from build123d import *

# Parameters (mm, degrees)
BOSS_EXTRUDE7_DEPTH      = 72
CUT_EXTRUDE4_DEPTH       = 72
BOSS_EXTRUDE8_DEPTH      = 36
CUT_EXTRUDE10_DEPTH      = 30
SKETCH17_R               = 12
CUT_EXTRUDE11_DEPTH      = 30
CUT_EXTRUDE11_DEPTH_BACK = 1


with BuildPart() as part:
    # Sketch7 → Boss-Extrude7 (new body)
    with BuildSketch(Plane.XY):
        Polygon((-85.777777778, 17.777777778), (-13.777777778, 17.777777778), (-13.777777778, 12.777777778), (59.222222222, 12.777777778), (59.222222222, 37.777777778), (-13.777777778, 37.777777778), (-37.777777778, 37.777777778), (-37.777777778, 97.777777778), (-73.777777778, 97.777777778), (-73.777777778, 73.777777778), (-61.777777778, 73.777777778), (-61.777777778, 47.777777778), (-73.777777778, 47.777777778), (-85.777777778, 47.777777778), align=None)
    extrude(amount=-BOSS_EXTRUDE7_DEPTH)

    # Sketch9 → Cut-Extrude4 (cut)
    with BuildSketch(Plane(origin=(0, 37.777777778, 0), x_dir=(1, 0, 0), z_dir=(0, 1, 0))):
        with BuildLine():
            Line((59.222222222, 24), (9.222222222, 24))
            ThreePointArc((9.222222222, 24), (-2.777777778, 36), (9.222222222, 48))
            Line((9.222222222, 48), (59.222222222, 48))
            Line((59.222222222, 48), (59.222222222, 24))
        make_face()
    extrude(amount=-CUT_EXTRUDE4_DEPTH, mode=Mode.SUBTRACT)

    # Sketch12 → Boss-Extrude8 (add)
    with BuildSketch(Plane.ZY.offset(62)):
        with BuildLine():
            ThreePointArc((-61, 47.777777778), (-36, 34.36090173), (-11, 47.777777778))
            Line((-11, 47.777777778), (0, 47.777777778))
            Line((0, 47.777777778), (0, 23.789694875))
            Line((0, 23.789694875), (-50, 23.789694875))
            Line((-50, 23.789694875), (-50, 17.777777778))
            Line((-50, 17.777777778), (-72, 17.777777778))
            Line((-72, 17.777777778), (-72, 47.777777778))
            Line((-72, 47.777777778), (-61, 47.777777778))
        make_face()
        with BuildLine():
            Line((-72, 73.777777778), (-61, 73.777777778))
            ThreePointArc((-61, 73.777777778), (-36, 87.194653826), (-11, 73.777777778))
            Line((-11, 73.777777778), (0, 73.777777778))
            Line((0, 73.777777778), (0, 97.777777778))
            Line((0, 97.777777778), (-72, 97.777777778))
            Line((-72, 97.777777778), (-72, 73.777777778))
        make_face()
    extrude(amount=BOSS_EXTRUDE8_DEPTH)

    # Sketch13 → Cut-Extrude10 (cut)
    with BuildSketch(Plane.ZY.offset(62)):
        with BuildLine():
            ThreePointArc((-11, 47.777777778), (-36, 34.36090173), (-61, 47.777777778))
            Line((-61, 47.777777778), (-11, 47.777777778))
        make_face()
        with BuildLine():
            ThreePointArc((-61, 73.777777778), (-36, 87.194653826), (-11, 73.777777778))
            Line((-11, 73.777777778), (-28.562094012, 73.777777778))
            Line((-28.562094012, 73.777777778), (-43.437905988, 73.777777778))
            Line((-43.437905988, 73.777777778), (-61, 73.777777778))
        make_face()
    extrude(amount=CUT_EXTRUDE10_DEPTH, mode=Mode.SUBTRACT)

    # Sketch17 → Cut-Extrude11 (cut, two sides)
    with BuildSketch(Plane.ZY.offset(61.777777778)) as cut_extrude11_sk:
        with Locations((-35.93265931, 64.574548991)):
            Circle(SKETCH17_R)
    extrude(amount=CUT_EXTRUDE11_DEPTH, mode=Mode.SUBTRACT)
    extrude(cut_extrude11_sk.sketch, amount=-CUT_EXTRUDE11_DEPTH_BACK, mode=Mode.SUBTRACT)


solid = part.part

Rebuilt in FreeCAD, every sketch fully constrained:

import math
import FreeCAD as App
import Part
import Sketcher
from FreeCAD import Vector


def add_polygon(sketch, points):
    """Adds a closed chain of lines whose ends are joined by coincident constraints."""
    first, n = sketch.GeometryCount, len(points)
    for a, b in zip(points, points[1:] + points[:1]):
        sketch.addGeometry(Part.LineSegment(App.Vector(*a, 0), App.Vector(*b, 0)), False)
    for i in range(n):
        sketch.addConstraint(Sketcher.Constraint("Coincident", first + i, 2, first + (i + 1) % n, 1))

doc = App.newDocument("Part")
params = doc.addObject("Spreadsheet::Sheet", "Params")
for row, (alias, value) in enumerate([
    ("sketch1_width", "72 mm"),
    ("sketch1_width2", "73 mm"),
    ("sketch1_width3", "97 mm"),
    ("sketch1_width4", "36 mm"),
    ("sketch1_width5", "12 mm"),
    ("pad1_length", "72 mm"),
    ("sketch2_radius", "12 mm"),
    ("sketch2_width", "50 mm"),
    ("pocket1_length", "72 mm"),
    ("sketch3_radius", "30 mm"),
    ("sketch3_width", "30 mm"),
    ("sketch3_width2", "24 mm"),
    ("sketch3_height", "11 mm"),
    ("sketch3_height2", "22 mm"),
    ("pad2_length", "36 mm"),
    ("sketch4_radius", "30 mm"),
    ("sketch4_height", "50 mm"),
    ("pocket2_length", "30 mm"),
    ("sketch5_diameter", "24 mm"),
    ("pocket3_length", "30 mm"),
    ("pocket3_length2", "1 mm"),
], start=1):
    params.set(f"A{row}", alias)
    params.set(f"B{row}", "=" + value)
    params.setAlias(f"B{row}", alias)

body = doc.addObject("PartDesign::Body", "Body")

# Sketch on XY plane
sketch1 = doc.addObject("Sketcher::SketchObject", "Sketch")
body.addObject(sketch1)
sketch1.AttachmentSupport = (doc.XY_Plane, [""])
sketch1.MapMode = "FlatFace"
add_polygon(sketch1, [(-85.777778, 17.777778), (-13.777778, 17.777778), (-13.777778, 12.777778), (59.222222, 12.777778), (59.222222, 37.777778), (-37.777778, 37.777778), (-37.777778, 97.777778), (-73.777778, 97.777778), (-73.777778, 73.777778), (-61.777778, 73.777778), (-61.777778, 47.777778), (-85.777778, 47.777778)])  # lines 0-11
sketch1.addConstraint([
    Sketcher.Constraint("Horizontal", 0),
    Sketcher.Constraint("Vertical", 1),
    Sketcher.Constraint("Horizontal", 2),
    Sketcher.Constraint("Vertical", 3),
    Sketcher.Constraint("Horizontal", 4),
    Sketcher.Constraint("Vertical", 5),
    Sketcher.Constraint("Horizontal", 6),
    Sketcher.Constraint("Vertical", 7),
    Sketcher.Constraint("Horizontal", 8),
    Sketcher.Constraint("Vertical", 9),
    Sketcher.Constraint("Horizontal", 10),
    Sketcher.Constraint("Vertical", 11),
    Sketcher.Constraint("Equal", 10, 7),
    Sketcher.Constraint("DistanceX", 0, 1, 0, 2, 72.0),
    Sketcher.Constraint("DistanceX", 2, 1, 2, 2, 73.0),
    Sketcher.Constraint("DistanceX", 4, 2, 4, 1, 97.0),
    Sketcher.Constraint("DistanceX", 6, 2, 6, 1, 36.0),
    Sketcher.Constraint("DistanceX", 8, 1, 8, 2, 12.0),
    Sketcher.Constraint("DistanceY", 1, 2, 1, 1, 5.0),
    Sketcher.Constraint("DistanceY", 3, 1, 3, 2, 25.0),
    Sketcher.Constraint("DistanceY", 5, 1, 5, 2, 60.0),
    Sketcher.Constraint("DistanceY", 9, 2, 9, 1, 26.0),
    Sketcher.Constraint("DistanceX", 0, 2, -1, 1, 13.777778),
    Sketcher.Constraint("DistanceY", -1, 1, 0, 2, 17.777778),
])
sketch1.setExpression("Constraints[25]", "Params.sketch1_width")
sketch1.setExpression("Constraints[26]", "Params.sketch1_width2")
sketch1.setExpression("Constraints[27]", "Params.sketch1_width3")
sketch1.setExpression("Constraints[28]", "Params.sketch1_width4")
sketch1.setExpression("Constraints[29]", "Params.sketch1_width5")
pad1 = doc.addObject("PartDesign::Pad", "Pad")
body.addObject(pad1)
pad1.Profile = sketch1
pad1.setExpression("Length", "Params.pad1_length")
pad1.Reversed = True

# Sketch on XZ plane
sketch2 = doc.addObject("Sketcher::SketchObject", "Sketch001")
body.addObject(sketch2)
sketch2.AttachmentSupport = (doc.XZ_Plane, [""])
sketch2.MapMode = "FlatFace"
sketch2.AttachmentOffset = App.Placement(Vector(0, 0, -37.777778), App.Rotation())
sketch2.addGeometry([
    Part.LineSegment(Vector(9.222222, -24, 0), Vector(59.222222, -24, 0)),
    Part.LineSegment(Vector(59.222222, -24, 0), Vector(59.222222, -48, 0)),
    Part.LineSegment(Vector(59.222222, -48, 0), Vector(9.222222, -48, 0)),
    Part.ArcOfCircle(Part.Circle(Vector(9.222222, -36, 0), Vector(0, 0, 1), 12), math.radians(90), math.radians(270)),
], False)
sketch2.addConstraint([
    Sketcher.Constraint("Coincident", 0, 2, 1, 1),
    Sketcher.Constraint("Coincident", 1, 2, 2, 1),
    Sketcher.Constraint("Tangent", 2, 2, 3, 2),
    Sketcher.Constraint("Tangent", 3, 1, 0, 1),
    Sketcher.Constraint("Horizontal", 0),
    Sketcher.Constraint("Vertical", 1),
    Sketcher.Constraint("Horizontal", 2),
    Sketcher.Constraint("Radius", 3, 12.0),
    Sketcher.Constraint("DistanceX", 0, 1, 0, 2, 50.0),
    Sketcher.Constraint("DistanceY", 3, 3, -1, 1, 36.0),
    Sketcher.Constraint("DistanceX", -1, 1, 3, 3, 9.222222),
])
sketch2.setExpression("Constraints[7]", "Params.sketch2_radius")
sketch2.setExpression("Constraints[8]", "Params.sketch2_width")
pocket1 = doc.addObject("PartDesign::Pocket", "Pocket")
body.addObject(pocket1)
pocket1.Profile = sketch2
pocket1.setExpression("Length", "Params.pocket1_length")
pocket1.Reversed = True

# Sketch on YZ plane
sketch3 = doc.addObject("Sketcher::SketchObject", "Sketch002")
body.addObject(sketch3)
sketch3.AttachmentSupport = (doc.YZ_Plane, [""])
sketch3.MapMode = "FlatFace"
sketch3.AttachmentOffset = App.Placement(Vector(0, 0, -62), App.Rotation())
sketch3.addGeometry([
    Part.ArcOfCircle(Part.Circle(Vector(64.360902, -36, 0), Vector(0, 0, 1), 30), math.radians(123.55731), math.radians(236.44269)),  # 0
    Part.LineSegment(Vector(47.777778, -61, 0), Vector(47.777778, -72, 0)),  # 1
    Part.LineSegment(Vector(47.777778, -72, 0), Vector(17.777778, -72, 0)),  # 2
    Part.LineSegment(Vector(17.777778, -72, 0), Vector(17.777778, -50, 0)),  # 3
    Part.LineSegment(Vector(17.777778, -50, 0), Vector(23.789695, -50, 0)),  # 4
    Part.LineSegment(Vector(23.789695, -50, 0), Vector(23.789695, 0, 0)),  # 5
    Part.LineSegment(Vector(23.789695, 0, 0), Vector(47.777778, 0, 0)),  # 6
    Part.LineSegment(Vector(47.777778, 0, 0), Vector(47.777778, -11, 0)),  # 7
    Part.LineSegment(Vector(73.777778, -72, 0), Vector(73.777778, -61, 0)),  # 8
    Part.ArcOfCircle(Part.Circle(Vector(57.194654, -36, 0), Vector(0, 0, 1), 30), math.radians(-56.44269), math.radians(56.44269)),  # 9
    Part.LineSegment(Vector(73.777778, -11, 0), Vector(73.777778, 0, 0)),  # 10
    Part.LineSegment(Vector(73.777778, 0, 0), Vector(97.777778, 0, 0)),  # 11
    Part.LineSegment(Vector(97.777778, 0, 0), Vector(97.777778, -72, 0)),  # 12
    Part.LineSegment(Vector(97.777778, -72, 0), Vector(73.777778, -72, 0)),  # 13
], False)
sketch3.addConstraint([
    Sketcher.Constraint("Coincident", 0, 2, 1, 1),
    Sketcher.Constraint("Coincident", 1, 2, 2, 1),
    Sketcher.Constraint("Coincident", 2, 2, 3, 1),
    Sketcher.Constraint("Coincident", 3, 2, 4, 1),
    Sketcher.Constraint("Coincident", 4, 2, 5, 1),
    Sketcher.Constraint("Coincident", 5, 2, 6, 1),
    Sketcher.Constraint("Coincident", 6, 2, 7, 1),
    Sketcher.Constraint("Coincident", 7, 2, 0, 1),
    Sketcher.Constraint("Coincident", 8, 2, 9, 1),
    Sketcher.Constraint("Coincident", 9, 2, 10, 1),
    Sketcher.Constraint("Coincident", 10, 2, 11, 1),
    Sketcher.Constraint("Coincident", 11, 2, 12, 1),
    Sketcher.Constraint("Coincident", 12, 2, 13, 1),
    Sketcher.Constraint("Coincident", 13, 2, 8, 1),
    Sketcher.Constraint("Vertical", 1),
    Sketcher.Constraint("Horizontal", 2),
    Sketcher.Constraint("Vertical", 3),
    Sketcher.Constraint("Horizontal", 4),
    Sketcher.Constraint("Vertical", 5),
    Sketcher.Constraint("Horizontal", 6),
    Sketcher.Constraint("Vertical", 7),
    Sketcher.Constraint("Vertical", 8),
    Sketcher.Constraint("Vertical", 10),
    Sketcher.Constraint("Horizontal", 11),
    Sketcher.Constraint("Vertical", 12),
    Sketcher.Constraint("Horizontal", 13),
    Sketcher.Constraint("Equal", 0, 9),
    Sketcher.Constraint("PointOnObject", 5, 2, -1),
    Sketcher.Constraint("PointOnObject", 10, 2, -1),
    Sketcher.Constraint("Horizontal", 0, 3, 9, 3),
    Sketcher.Constraint("Horizontal", 0, 2, 8, 2),
    Sketcher.Constraint("Horizontal", 7, 2, 9, 2),
    Sketcher.Constraint("Horizontal", 2, 2, 12, 2),
    Sketcher.Constraint("Vertical", 1, 2, 6, 2),
    Sketcher.Constraint("Equal", 1, 7),
    Sketcher.Constraint("Radius", 0, 30.0),
    Sketcher.Constraint("DistanceX", 2, 2, 2, 1, 30.0),
    Sketcher.Constraint("DistanceX", 11, 1, 11, 2, 24.0),
    Sketcher.Constraint("DistanceY", 1, 2, 1, 1, 11.0),
    Sketcher.Constraint("DistanceY", 3, 1, 3, 2, 22.0),
    Sketcher.Constraint("DistanceY", 5, 1, 5, 2, 50.0),
    Sketcher.Constraint("DistanceX", 0, 2, 8, 2, 26.0),
    Sketcher.Constraint("DistanceX", -1, 1, 0, 3, 64.360902),
    Sketcher.Constraint("DistanceX", 4, 1, 4, 2, 6.011917),
])
sketch3.setExpression("Constraints[35]", "Params.sketch3_radius")
sketch3.setExpression("Constraints[36]", "Params.sketch3_width")
sketch3.setExpression("Constraints[37]", "Params.sketch3_width2")
sketch3.setExpression("Constraints[38]", "Params.sketch3_height")
sketch3.setExpression("Constraints[39]", "Params.sketch3_height2")
pad2 = doc.addObject("PartDesign::Pad", "Pad001")
body.addObject(pad2)
pad2.Profile = sketch3
pad2.setExpression("Length", "Params.pad2_length")
pad2.Reversed = True

# Sketch on YZ plane
sketch4 = doc.addObject("Sketcher::SketchObject", "Sketch003")
body.addObject(sketch4)
sketch4.AttachmentSupport = (doc.YZ_Plane, [""])
sketch4.MapMode = "FlatFace"
sketch4.AttachmentOffset = App.Placement(Vector(0, 0, -62), App.Rotation())
sketch4.addGeometry([
    Part.ArcOfCircle(Part.Circle(Vector(64.360902, -36, 0), Vector(0, 0, 1), 30), math.radians(123.55731), math.radians(236.44269)),
    Part.LineSegment(Vector(47.777778, -11, 0), Vector(47.777778, -61, 0)),
    Part.ArcOfCircle(Part.Circle(Vector(57.194654, -36, 0), Vector(0, 0, 1), 30), math.radians(-56.44269), math.radians(56.44269)),
    Part.LineSegment(Vector(73.777778, -61, 0), Vector(73.777778, -11, 0)),
], False)
sketch4.addConstraint([
    Sketcher.Constraint("Coincident", 0, 1, 1, 1),
    Sketcher.Constraint("Coincident", 1, 2, 0, 2),
    Sketcher.Constraint("Coincident", 2, 1, 3, 1),
    Sketcher.Constraint("Coincident", 3, 2, 2, 2),
    Sketcher.Constraint("Vertical", 1),
    Sketcher.Constraint("Vertical", 3),
    Sketcher.Constraint("Equal", 0, 2),
    Sketcher.Constraint("Horizontal", 0, 3, 2, 3),
    Sketcher.Constraint("Horizontal", 1, 2, 2, 1),
    Sketcher.Constraint("Radius", 0, 30.0),
    Sketcher.Constraint("DistanceY", 1, 2, 1, 1, 50.0),
    Sketcher.Constraint("DistanceY", 0, 3, -1, 1, 36.0),
    Sketcher.Constraint("DistanceX", 1, 2, 2, 1, 26.0),
    Sketcher.Constraint("DistanceX", -1, 1, 0, 3, 64.360902),
])
sketch4.setExpression("Constraints[9]", "Params.sketch4_radius")
sketch4.setExpression("Constraints[10]", "Params.sketch4_height")
pocket2 = doc.addObject("PartDesign::Pocket", "Pocket001")
body.addObject(pocket2)
pocket2.Profile = sketch4
pocket2.setExpression("Length", "Params.pocket2_length")

# Sketch on YZ plane
sketch5 = doc.addObject("Sketcher::SketchObject", "Sketch004")
body.addObject(sketch5)
sketch5.AttachmentSupport = (doc.YZ_Plane, [""])
sketch5.MapMode = "FlatFace"
sketch5.AttachmentOffset = App.Placement(Vector(0, 0, -61.777778), App.Rotation())
sketch5.addGeometry(Part.Circle(Vector(64.574549, -35.932659, 0), Vector(0, 0, 1), 12), False)
sketch5.addConstraint([
    Sketcher.Constraint("Diameter", 0, 24.0),
    Sketcher.Constraint("DistanceX", -1, 1, 0, 3, 64.574549),
    Sketcher.Constraint("DistanceY", 0, 3, -1, 1, 35.932659),
])
sketch5.setExpression("Constraints[0]", "Params.sketch5_diameter")
pocket3 = doc.addObject("PartDesign::Pocket", "Pocket002")
body.addObject(pocket3)
pocket3.Profile = sketch5
pocket3.Type = "TwoLengths"
pocket3.setExpression("Length", "Params.pocket3_length")
pocket3.setExpression("Length2", "Params.pocket3_length2")

doc.recompute()
